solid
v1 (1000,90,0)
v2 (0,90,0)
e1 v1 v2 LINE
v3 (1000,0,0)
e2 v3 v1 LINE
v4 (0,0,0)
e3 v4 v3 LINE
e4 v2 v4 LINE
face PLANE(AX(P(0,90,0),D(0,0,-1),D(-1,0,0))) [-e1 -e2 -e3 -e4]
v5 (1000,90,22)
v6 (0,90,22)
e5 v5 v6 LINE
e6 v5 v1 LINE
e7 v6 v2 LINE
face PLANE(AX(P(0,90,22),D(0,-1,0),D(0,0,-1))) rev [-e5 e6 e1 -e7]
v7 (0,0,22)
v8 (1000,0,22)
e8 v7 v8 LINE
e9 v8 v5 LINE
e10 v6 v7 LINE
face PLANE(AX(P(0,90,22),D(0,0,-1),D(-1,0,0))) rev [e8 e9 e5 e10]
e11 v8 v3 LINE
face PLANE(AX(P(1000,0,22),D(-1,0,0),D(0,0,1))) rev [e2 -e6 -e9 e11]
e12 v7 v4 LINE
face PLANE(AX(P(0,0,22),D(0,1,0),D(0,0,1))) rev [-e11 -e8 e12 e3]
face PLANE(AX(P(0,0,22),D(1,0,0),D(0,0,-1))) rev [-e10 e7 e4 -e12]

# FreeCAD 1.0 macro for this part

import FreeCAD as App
import Part
import Sketcher
Q = App.Units.Quantity


def add_polygon(sketch, points):
    """Adds a closed chain of lines whose ends are joined by coincident constraints."""
    first, n = sketch.GeometryCount, len(points)
    for a, b in zip(points, points[1:] + points[:1]):
        sketch.addGeometry(Part.LineSegment(App.Vector(*a, 0), App.Vector(*b, 0)), False)
    for i in range(n):
        sketch.addConstraint(Sketcher.Constraint("Coincident", first + i, 2, first + (i + 1) % n, 1))

doc = App.newDocument("Part")
params = doc.addObject("Spreadsheet::Sheet", "Params")
for row, (alias, value) in enumerate([
    ("sketch1_width", "1000 mm"),
    ("sketch1_height", "90 mm"),
    ("pad1_length", "22 mm"),
], start=1):
    params.set(f"A{row}", alias)
    params.set(f"B{row}", "=" + value)
    params.setAlias(f"B{row}", alias)

body = doc.addObject("PartDesign::Body", "Body")

# Sketch on XY plane
sketch1 = doc.addObject("Sketcher::SketchObject", "Sketch")
body.addObject(sketch1)
sketch1.AttachmentSupport = (doc.XY_Plane, [""])
sketch1.MapMode = "FlatFace"
add_polygon(sketch1, [(0, 90), (0, 0), (1000, 0), (1000, 90)])  # lines 0-3
sketch1.addConstraint(Sketcher.Constraint("Vertical", 0))
sketch1.addConstraint(Sketcher.Constraint("Horizontal", 1))
sketch1.addConstraint(Sketcher.Constraint("Vertical", 2))
sketch1.addConstraint(Sketcher.Constraint("Horizontal", 3))
sketch1.addConstraint(Sketcher.Constraint("Coincident", 0, 2, -1, 1))
sketch1.addConstraint(Sketcher.Constraint("DistanceX", 1, 1, 1, 2, Q("1000 mm")))
sketch1.addConstraint(Sketcher.Constraint("DistanceY", 0, 2, 0, 1, Q("90 mm")))
sketch1.setExpression("Constraints[9]", "Params.sketch1_width")
sketch1.setExpression("Constraints[10]", "Params.sketch1_height")
pad1 = doc.addObject("PartDesign::Pad", "Pad")
body.addObject(pad1)
pad1.Profile = sketch1
pad1.setExpression("Length", "Params.pad1_length")

doc.recompute()
